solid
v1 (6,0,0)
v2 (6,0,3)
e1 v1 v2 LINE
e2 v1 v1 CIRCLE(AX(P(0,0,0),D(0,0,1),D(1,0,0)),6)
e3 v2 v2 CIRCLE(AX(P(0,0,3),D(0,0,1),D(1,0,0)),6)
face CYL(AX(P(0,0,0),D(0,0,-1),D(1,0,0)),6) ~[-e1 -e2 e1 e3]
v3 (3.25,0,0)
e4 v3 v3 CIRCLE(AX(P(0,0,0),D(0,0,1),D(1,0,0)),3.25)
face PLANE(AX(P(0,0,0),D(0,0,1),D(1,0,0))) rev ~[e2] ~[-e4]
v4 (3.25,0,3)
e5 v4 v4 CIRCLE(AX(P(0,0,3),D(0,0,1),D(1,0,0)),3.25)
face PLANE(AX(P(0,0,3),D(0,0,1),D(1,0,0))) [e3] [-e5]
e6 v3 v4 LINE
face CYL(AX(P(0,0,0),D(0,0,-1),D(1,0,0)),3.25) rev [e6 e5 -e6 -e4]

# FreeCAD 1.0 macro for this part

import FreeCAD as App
import Part
import Sketcher

V = App.Vector
Q = App.Units.Quantity

doc = App.newDocument("Part")
params = doc.addObject("Spreadsheet::Sheet", "Params")
for row, (alias, value) in enumerate([
    ("sketch1_diameter", "12 mm"),
    ("sketch1_diameter2", "6.5 mm"),
    ("pad1_length", "3 mm"),
], start=1):
    params.set(f"A{row}", alias)
    params.set(f"B{row}", "=" + value)
    params.setAlias(f"B{row}", alias)

body = doc.addObject("PartDesign::Body", "Body")

# Sketch on XY plane
sketch1 = doc.addObject("Sketcher::SketchObject", "Sketch")
body.addObject(sketch1)
sketch1.AttachmentSupport = (doc.XY_Plane, [""])
sketch1.MapMode = "FlatFace"
sketch1.addGeometry(Part.Circle(V(0, 0, 0), V(0, 0, 1), 6), False)
sketch1.addGeometry(Part.Circle(V(0, 0, 0), V(0, 0, 1), 3.25), False)
sketch1.addConstraint(Sketcher.Constraint("Coincident", 0, 3, -1, 1))
sketch1.addConstraint(Sketcher.Constraint("Coincident", 1, 3, -1, 1))
sketch1.addConstraint(Sketcher.Constraint("Diameter", 0, Q("12 mm")))
sketch1.addConstraint(Sketcher.Constraint("Diameter", 1, Q("6.5 mm")))
sketch1.setExpression("Constraints[2]", "Params.sketch1_diameter")
sketch1.setExpression("Constraints[3]", "Params.sketch1_diameter2")
pad1 = doc.addObject("PartDesign::Pad", "Pad")
body.addObject(pad1)
pad1.Profile = sketch1
pad1.setExpression("Length", "Params.pad1_length")

doc.recompute()
